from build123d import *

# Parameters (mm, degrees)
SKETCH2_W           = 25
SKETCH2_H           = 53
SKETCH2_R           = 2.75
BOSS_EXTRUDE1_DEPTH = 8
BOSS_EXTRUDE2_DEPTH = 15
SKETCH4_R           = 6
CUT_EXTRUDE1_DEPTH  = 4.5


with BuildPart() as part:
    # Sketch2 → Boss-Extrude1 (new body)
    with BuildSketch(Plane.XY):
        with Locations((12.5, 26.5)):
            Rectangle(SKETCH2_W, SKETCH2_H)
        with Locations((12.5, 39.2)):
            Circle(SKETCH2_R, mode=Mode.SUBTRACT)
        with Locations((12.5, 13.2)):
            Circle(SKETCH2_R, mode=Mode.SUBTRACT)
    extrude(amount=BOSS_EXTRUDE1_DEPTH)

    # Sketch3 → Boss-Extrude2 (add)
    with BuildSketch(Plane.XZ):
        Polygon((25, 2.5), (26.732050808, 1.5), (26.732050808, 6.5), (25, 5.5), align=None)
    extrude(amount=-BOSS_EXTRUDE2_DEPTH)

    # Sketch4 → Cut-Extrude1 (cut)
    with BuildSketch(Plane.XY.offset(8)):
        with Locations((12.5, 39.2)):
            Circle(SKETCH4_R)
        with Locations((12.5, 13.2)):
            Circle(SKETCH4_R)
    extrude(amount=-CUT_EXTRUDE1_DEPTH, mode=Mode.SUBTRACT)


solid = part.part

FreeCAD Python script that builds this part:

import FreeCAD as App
import Part
import Sketcher
Q = App.Units.Quantity


def add_polygon(sketch, points):
    """Adds a closed chain of lines whose ends are joined by coincident constraints."""
    first, n = sketch.GeometryCount, len(points)
    for a, b in zip(points, points[1:] + points[:1]):
        sketch.addGeometry(Part.LineSegment(App.Vector(*a, 0), App.Vector(*b, 0)), False)
    for i in range(n):
        sketch.addConstraint(Sketcher.Constraint("Coincident", first + i, 2, first + (i + 1) % n, 1))

doc = App.newDocument("Part")
body = doc.addObject("PartDesign::Body", "Body")

# Sketch on XY plane
sketch1 = body.newObject("Sketcher::SketchObject", "Sketch")
sketch1.AttachmentSupport = (doc.getObject("XY_Plane"), [""])
sketch1.MapMode = "FlatFace"
add_polygon(sketch1, [(0, 53), (0, 0), (25, 0), (25, 53)])  # lines 0-3
sketch1.addGeometry(Part.Circle(App.Vector(12.5, 13.2, 0), App.Vector(0, 0, 1), 2.75), False)  # 4
sketch1.addGeometry(Part.Circle(App.Vector(12.5, 39.2, 0), App.Vector(0, 0, 1), 2.75), False)  # 5
sketch1.addConstraint([
    Sketcher.Constraint("Vertical", 0),
    Sketcher.Constraint("Horizontal", 1),
    Sketcher.Constraint("Vertical", 2),
    Sketcher.Constraint("Horizontal", 3),
    Sketcher.Constraint("Coincident", 0, 2, -1, 1),
    Sketcher.Constraint("Equal", 4, 5),
    Sketcher.Constraint("Vertical", 4, 3, 5, 3),
    Sketcher.Constraint("Diameter", 4, Q("5.5 mm")),
    Sketcher.Constraint("DistanceX", 1, 1, 1, 2, Q("25 mm")),
    Sketcher.Constraint("DistanceY", 0, 2, 0, 1, Q("53 mm")),
    Sketcher.Constraint("DistanceY", 4, 3, 5, 3, Q("26 mm")),
    Sketcher.Constraint("DistanceX", -1, 1, 4, 3, Q("12.5 mm")),
    Sketcher.Constraint("DistanceY", -1, 1, 4, 3, Q("13.2 mm")),
])
pad1 = body.newObject("PartDesign::Pad", "Pad")
pad1.Profile = sketch1
pad1.Length = 8

# Sketch on XZ plane
sketch2 = body.newObject("Sketcher::SketchObject", "Sketch001")
sketch2.AttachmentSupport = (doc.getObject("XZ_Plane"), [""])
sketch2.MapMode = "FlatFace"
add_polygon(sketch2, [(25, 2.5), (26.732051, 1.5), (26.732051, 6.5), (25, 5.5)])  # lines 0-3
sketch2.addConstraint([
    Sketcher.Constraint("Vertical", 1),
    Sketcher.Constraint("Vertical", 3),
    Sketcher.Constraint("Equal", 0, 2),
    Sketcher.Constraint("DistanceY", 1, 1, 1, 2, Q("5 mm")),
    Sketcher.Constraint("DistanceY", 3, 2, 3, 1, Q("3 mm")),
    Sketcher.Constraint("Angle", 0, Q("-30 deg")),
    Sketcher.Constraint("DistanceX", -1, 1, 2, 2, Q("25 mm")),
    Sketcher.Constraint("DistanceY", -1, 1, 0, 2, Q("1.5 mm")),
])
pad2 = body.newObject("PartDesign::Pad", "Pad001")
pad2.Profile = sketch2
pad2.Length = 15
pad2.Reversed = True

# Sketch on XY plane
sketch3 = body.newObject("Sketcher::SketchObject", "Sketch002")
sketch3.AttachmentSupport = (doc.getObject("XY_Plane"), [""])
sketch3.MapMode = "FlatFace"
sketch3.AttachmentOffset = App.Placement(App.Vector(0, 0, 8), App.Rotation())
sketch3.addGeometry([
    Part.Circle(App.Vector(12.5, 39.2, 0), App.Vector(0, 0, 1), 6),
    Part.Circle(App.Vector(12.5, 13.2, 0), App.Vector(0, 0, 1), 6),
], False)
sketch3.addConstraint([
    Sketcher.Constraint("Equal", 0, 1),
    Sketcher.Constraint("Vertical", 0, 3, 1, 3),
    Sketcher.Constraint("Diameter", 0, Q("12 mm")),
    Sketcher.Constraint("DistanceY", 1, 3, 0, 3, Q("26 mm")),
    Sketcher.Constraint("DistanceX", -1, 1, 0, 3, Q("12.5 mm")),
    Sketcher.Constraint("DistanceY", -1, 1, 0, 3, Q("39.2 mm")),
])
pocket1 = body.newObject("PartDesign::Pocket", "Pocket")
pocket1.Profile = sketch3
pocket1.Length = 4.5

doc.recompute()
